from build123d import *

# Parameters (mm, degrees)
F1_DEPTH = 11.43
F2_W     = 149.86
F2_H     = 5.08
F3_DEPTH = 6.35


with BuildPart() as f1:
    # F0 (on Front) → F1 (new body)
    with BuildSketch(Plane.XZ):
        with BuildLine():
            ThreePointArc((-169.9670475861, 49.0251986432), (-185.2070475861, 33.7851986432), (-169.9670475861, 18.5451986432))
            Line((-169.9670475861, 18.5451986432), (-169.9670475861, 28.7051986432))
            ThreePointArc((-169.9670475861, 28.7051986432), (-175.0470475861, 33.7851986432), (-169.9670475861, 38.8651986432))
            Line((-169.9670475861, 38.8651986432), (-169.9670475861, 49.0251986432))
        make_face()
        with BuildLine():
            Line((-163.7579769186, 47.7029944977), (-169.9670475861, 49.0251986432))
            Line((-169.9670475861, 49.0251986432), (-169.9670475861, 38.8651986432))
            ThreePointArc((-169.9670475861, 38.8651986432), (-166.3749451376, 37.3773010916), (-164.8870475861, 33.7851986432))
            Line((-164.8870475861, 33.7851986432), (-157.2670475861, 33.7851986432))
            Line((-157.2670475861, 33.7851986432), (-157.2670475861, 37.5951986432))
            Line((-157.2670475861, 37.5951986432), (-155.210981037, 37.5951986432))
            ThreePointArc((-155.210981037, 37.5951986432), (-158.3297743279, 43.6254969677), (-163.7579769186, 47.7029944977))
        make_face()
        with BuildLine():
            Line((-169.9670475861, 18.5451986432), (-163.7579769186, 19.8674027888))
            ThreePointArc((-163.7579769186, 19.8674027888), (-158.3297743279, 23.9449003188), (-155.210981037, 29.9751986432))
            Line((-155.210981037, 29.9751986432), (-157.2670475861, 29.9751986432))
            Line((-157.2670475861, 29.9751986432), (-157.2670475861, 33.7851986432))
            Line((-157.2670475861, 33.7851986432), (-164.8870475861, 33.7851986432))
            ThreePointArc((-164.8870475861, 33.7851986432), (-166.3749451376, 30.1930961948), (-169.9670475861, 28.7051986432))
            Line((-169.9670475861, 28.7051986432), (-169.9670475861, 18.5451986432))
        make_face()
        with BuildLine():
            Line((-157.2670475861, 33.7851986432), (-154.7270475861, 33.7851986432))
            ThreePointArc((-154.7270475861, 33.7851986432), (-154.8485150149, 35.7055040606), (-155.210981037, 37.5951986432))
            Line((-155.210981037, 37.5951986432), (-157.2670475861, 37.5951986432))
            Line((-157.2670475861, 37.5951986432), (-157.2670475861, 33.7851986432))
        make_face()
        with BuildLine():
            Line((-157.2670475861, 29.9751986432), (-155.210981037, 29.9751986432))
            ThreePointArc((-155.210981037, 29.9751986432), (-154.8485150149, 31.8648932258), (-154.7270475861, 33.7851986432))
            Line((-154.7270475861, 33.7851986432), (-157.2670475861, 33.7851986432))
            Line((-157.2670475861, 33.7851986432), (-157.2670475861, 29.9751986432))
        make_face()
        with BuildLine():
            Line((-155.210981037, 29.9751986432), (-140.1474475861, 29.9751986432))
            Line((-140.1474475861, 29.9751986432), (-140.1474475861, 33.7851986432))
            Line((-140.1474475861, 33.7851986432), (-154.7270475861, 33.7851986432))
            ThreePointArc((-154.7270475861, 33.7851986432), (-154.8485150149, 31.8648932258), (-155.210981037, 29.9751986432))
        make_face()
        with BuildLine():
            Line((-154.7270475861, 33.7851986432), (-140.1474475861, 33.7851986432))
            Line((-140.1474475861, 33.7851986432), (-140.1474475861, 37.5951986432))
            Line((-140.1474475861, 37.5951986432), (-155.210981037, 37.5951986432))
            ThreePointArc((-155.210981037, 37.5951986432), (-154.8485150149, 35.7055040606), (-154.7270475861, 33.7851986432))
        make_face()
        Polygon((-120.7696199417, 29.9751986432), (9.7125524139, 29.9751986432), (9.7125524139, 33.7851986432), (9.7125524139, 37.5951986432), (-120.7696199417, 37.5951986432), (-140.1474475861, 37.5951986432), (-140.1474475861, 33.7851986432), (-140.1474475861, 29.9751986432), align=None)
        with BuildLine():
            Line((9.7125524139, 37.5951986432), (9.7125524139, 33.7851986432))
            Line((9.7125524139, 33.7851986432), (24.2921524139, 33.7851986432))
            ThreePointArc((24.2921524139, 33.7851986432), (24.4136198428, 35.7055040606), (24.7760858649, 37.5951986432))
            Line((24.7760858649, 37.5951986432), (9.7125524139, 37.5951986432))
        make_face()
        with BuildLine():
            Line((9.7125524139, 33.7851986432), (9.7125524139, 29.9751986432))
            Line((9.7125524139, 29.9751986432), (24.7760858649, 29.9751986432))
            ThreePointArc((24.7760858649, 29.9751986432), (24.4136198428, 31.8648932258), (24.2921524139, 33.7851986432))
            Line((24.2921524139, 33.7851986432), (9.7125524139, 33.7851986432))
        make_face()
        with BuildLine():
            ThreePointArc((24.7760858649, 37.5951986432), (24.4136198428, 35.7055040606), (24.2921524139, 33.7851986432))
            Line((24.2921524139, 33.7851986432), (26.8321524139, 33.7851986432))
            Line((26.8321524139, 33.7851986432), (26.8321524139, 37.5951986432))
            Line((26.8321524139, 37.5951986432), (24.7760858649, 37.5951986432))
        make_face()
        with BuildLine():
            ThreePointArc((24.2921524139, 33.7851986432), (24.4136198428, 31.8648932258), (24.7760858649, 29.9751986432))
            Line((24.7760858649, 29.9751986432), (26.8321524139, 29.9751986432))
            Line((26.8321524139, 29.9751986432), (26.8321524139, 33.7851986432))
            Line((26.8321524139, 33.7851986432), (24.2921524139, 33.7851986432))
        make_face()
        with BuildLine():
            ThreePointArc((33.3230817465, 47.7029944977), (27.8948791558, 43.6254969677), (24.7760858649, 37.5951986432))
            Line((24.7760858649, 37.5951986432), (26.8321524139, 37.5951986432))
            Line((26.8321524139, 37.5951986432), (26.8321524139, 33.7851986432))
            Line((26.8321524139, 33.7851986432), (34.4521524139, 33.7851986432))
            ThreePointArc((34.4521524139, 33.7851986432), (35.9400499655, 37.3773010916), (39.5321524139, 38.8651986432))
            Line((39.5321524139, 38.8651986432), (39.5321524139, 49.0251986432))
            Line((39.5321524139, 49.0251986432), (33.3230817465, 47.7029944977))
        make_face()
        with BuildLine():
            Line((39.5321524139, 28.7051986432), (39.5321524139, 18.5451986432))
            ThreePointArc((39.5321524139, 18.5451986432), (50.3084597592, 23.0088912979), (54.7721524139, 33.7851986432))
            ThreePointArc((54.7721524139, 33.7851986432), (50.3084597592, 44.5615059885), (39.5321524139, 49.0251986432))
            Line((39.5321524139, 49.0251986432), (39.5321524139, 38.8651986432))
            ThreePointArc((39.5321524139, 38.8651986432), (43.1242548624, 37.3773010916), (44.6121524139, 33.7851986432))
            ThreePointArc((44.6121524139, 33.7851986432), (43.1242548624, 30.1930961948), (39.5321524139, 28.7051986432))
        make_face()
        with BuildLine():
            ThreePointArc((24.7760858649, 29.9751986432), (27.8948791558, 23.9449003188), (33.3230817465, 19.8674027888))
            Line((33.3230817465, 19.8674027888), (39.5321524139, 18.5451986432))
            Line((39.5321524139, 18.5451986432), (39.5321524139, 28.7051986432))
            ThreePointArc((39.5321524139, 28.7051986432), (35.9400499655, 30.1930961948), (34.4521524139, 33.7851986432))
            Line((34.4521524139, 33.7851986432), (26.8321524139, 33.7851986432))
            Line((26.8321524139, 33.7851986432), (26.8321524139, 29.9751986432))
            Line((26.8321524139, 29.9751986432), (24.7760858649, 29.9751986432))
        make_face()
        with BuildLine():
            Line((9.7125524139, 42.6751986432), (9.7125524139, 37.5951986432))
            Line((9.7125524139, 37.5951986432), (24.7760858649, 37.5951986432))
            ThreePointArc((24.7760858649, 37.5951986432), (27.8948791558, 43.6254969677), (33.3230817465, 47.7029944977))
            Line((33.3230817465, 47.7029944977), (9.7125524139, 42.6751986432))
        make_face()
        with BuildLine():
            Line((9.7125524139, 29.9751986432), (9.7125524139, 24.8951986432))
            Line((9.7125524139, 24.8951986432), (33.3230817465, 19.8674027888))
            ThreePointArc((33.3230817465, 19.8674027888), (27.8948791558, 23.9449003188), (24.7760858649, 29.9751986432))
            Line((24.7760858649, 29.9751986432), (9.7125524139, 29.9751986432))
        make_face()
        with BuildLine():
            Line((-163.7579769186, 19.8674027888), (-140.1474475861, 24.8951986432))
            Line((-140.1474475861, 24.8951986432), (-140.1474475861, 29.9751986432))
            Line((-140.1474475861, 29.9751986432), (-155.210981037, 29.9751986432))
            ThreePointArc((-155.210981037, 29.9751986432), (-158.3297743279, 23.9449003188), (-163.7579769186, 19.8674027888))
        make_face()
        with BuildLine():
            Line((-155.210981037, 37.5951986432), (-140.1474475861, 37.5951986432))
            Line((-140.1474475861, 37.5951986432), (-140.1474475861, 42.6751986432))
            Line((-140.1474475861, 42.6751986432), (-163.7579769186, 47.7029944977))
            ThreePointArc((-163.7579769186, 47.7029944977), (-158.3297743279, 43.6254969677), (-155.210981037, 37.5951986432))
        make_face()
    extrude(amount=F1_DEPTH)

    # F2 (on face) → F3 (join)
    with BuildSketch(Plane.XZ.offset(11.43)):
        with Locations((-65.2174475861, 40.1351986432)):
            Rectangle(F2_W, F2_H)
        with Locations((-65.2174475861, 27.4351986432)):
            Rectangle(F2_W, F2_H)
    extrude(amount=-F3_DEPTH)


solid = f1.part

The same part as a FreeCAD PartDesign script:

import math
import FreeCAD as App
import Part
import Sketcher

V = App.Vector
Q = App.Units.Quantity

doc = App.newDocument("Part")
body = doc.addObject("PartDesign::Body", "Body")

# Sketch on XZ plane
sketch1 = body.newObject("Sketcher::SketchObject", "Sketch")
sketch1.AttachmentSupport = (doc.getObject("XZ_Plane"), [""])
sketch1.MapMode = "FlatFace"
sketch1.addGeometry(Part.ArcOfCircle(Part.Circle(V(-170, 34, 0), V(0, 0, 1), 15), math.radians(90), math.radians(270)), False)
sketch1.addGeometry(Part.LineSegment(V(-170, 19, 0), V(-164, 20, 0)), False)
sketch1.addGeometry(Part.LineSegment(V(-164, 20, 0), V(-140, 25, 0)), False)
sketch1.addGeometry(Part.LineSegment(V(-140, 25, 0), V(-140, 30, 0)), False)
sketch1.addGeometry(Part.LineSegment(V(-140, 30, 0), V(10, 30, 0)), False)
sketch1.addGeometry(Part.LineSegment(V(10, 30, 0), V(10, 25, 0)), False)
sketch1.addGeometry(Part.LineSegment(V(10, 25, 0), V(33, 20, 0)), False)
sketch1.addGeometry(Part.LineSegment(V(33, 20, 0), V(40, 19, 0)), False)
sketch1.addGeometry(Part.ArcOfCircle(Part.Circle(V(40, 34, 0), V(0, 0, 1), 15), math.radians(-90), math.radians(0)), False)
sketch1.addGeometry(Part.ArcOfCircle(Part.Circle(V(40, 34, 0), V(0, 0, 1), 15), math.radians(0), math.radians(90)), False)
sketch1.addGeometry(Part.LineSegment(V(40, 49, 0), V(33, 48, 0)), False)
sketch1.addGeometry(Part.LineSegment(V(33, 48, 0), V(10, 43, 0)), False)
sketch1.addGeometry(Part.LineSegment(V(10, 43, 0), V(10, 38, 0)), False)
sketch1.addGeometry(Part.LineSegment(V(10, 38, 0), V(-140, 38, 0)), False)
sketch1.addGeometry(Part.LineSegment(V(-140, 38, 0), V(-140, 43, 0)), False)
sketch1.addGeometry(Part.LineSegment(V(-140, 43, 0), V(-164, 48, 0)), False)
sketch1.addGeometry(Part.LineSegment(V(-164, 48, 0), V(-170, 49, 0)), False)
sketch1.addGeometry(Part.ArcOfCircle(Part.Circle(V(40, 34, 0), V(0, 0, 1), 5), math.radians(90), math.radians(180)), False)
sketch1.addGeometry(Part.ArcOfCircle(Part.Circle(V(40, 34, 0), V(0, 0, 1), 5), math.radians(0), math.radians(90)), False)
sketch1.addGeometry(Part.ArcOfCircle(Part.Circle(V(40, 34, 0), V(0, 0, 1), 5), math.radians(-90), math.radians(0)), False)
sketch1.addGeometry(Part.ArcOfCircle(Part.Circle(V(40, 34, 0), V(0, 0, 1), 5), math.radians(180), math.radians(270)), False)
sketch1.addGeometry(Part.ArcOfCircle(Part.Circle(V(-170, 34, 0), V(0, 0, 1), 5), math.radians(90), math.radians(270)), False)
sketch1.addGeometry(Part.ArcOfCircle(Part.Circle(V(-170, 34, 0), V(0, 0, 1), 5), math.radians(0), math.radians(90)), False)
sketch1.addGeometry(Part.ArcOfCircle(Part.Circle(V(-170, 34, 0), V(0, 0, 1), 5), math.radians(-90), math.radians(0)), False)
sketch1.addConstraint(Sketcher.Constraint("Coincident", 0, 2, 1, 1))
sketch1.addConstraint(Sketcher.Constraint("Coincident", 1, 2, 2, 1))
sketch1.addConstraint(Sketcher.Constraint("Coincident", 2, 2, 3, 1))
sketch1.addConstraint(Sketcher.Constraint("Coincident", 3, 2, 4, 1))
sketch1.addConstraint(Sketcher.Constraint("Coincident", 4, 2, 5, 1))
sketch1.addConstraint(Sketcher.Constraint("Coincident", 5, 2, 6, 1))
sketch1.addConstraint(Sketcher.Constraint("Coincident", 6, 2, 7, 1))
sketch1.addConstraint(Sketcher.Constraint("Coincident", 7, 2, 8, 1))
sketch1.addConstraint(Sketcher.Constraint("Tangent", 8, 2, 9, 1))
sketch1.addConstraint(Sketcher.Constraint("Coincident", 9, 2, 10, 1))
sketch1.addConstraint(Sketcher.Constraint("Coincident", 10, 2, 11, 1))
sketch1.addConstraint(Sketcher.Constraint("Coincident", 11, 2, 12, 1))
sketch1.addConstraint(Sketcher.Constraint("Coincident", 12, 2, 13, 1))
sketch1.addConstraint(Sketcher.Constraint("Coincident", 13, 2, 14, 1))
sketch1.addConstraint(Sketcher.Constraint("Coincident", 14, 2, 15, 1))
sketch1.addConstraint(Sketcher.Constraint("Coincident", 15, 2, 16, 1))
sketch1.addConstraint(Sketcher.Constraint("Coincident", 16, 2, 0, 1))
sketch1.addConstraint(Sketcher.Constraint("Tangent", 17, 1, 18, 2))
sketch1.addConstraint(Sketcher.Constraint("Tangent", 18, 1, 19, 2))
sketch1.addConstraint(Sketcher.Constraint("Tangent", 19, 1, 20, 2))
sketch1.addConstraint(Sketcher.Constraint("Tangent", 20, 1, 17, 2))
sketch1.addConstraint(Sketcher.Constraint("Tangent", 21, 1, 22, 2))
sketch1.addConstraint(Sketcher.Constraint("Tangent", 22, 1, 23, 2))
sketch1.addConstraint(Sketcher.Constraint("Tangent", 23, 1, 21, 2))
sketch1.addConstraint(Sketcher.Constraint("Vertical", 3))
sketch1.addConstraint(Sketcher.Constraint("Horizontal", 4))
sketch1.addConstraint(Sketcher.Constraint("Vertical", 5))
sketch1.addConstraint(Sketcher.Constraint("Vertical", 12))
sketch1.addConstraint(Sketcher.Constraint("Horizontal", 13))
sketch1.addConstraint(Sketcher.Constraint("Vertical", 14))
sketch1.addConstraint(Sketcher.Constraint("Coincident", 17, 3, 8, 3))
sketch1.addConstraint(Sketcher.Constraint("Coincident", 21, 3, 0, 3))
sketch1.addConstraint(Sketcher.Constraint("Equal", 0, 8))
sketch1.addConstraint(Sketcher.Constraint("Equal", 8, 9))
sketch1.addConstraint(Sketcher.Constraint("Equal", 17, 18))
sketch1.addConstraint(Sketcher.Constraint("Equal", 20, 21))
sketch1.addConstraint(Sketcher.Constraint("Parallel", 1, 2))
sketch1.addConstraint(Sketcher.Constraint("Parallel", 6, 7))
sketch1.addConstraint(Sketcher.Constraint("Parallel", 2, 10))
sketch1.addConstraint(Sketcher.Constraint("Parallel", 10, 11))
sketch1.addConstraint(Sketcher.Constraint("Parallel", 7, 15))
sketch1.addConstraint(Sketcher.Constraint("Parallel", 15, 16))
sketch1.addConstraint(Sketcher.Constraint("Horizontal", 0, 3, 8, 3))
sketch1.addConstraint(Sketcher.Constraint("Horizontal", 2, 2, 5, 2))
sketch1.addConstraint(Sketcher.Constraint("Horizontal", 1, 2, 6, 2))
sketch1.addConstraint(Sketcher.Constraint("Horizontal", 23, 3, 8, 2))
sketch1.addConstraint(Sketcher.Constraint("Horizontal", 11, 2, 14, 2))
sketch1.addConstraint(Sketcher.Constraint("Horizontal", 10, 2, 15, 2))
sketch1.addConstraint(Sketcher.Constraint("Horizontal", 8, 2, 18, 1))
sketch1.addConstraint(Sketcher.Constraint("Horizontal", 18, 1, 20, 1))
sketch1.addConstraint(Sketcher.Constraint("Horizontal", 20, 1, 22, 1))
sketch1.addConstraint(Sketcher.Constraint("Vertical", 23, 3, 0, 2))
sketch1.addConstraint(Sketcher.Constraint("Vertical", 20, 3, 7, 2))
sketch1.addConstraint(Sketcher.Constraint("Vertical", 7, 2, 9, 2))
sketch1.addConstraint(Sketcher.Constraint("Vertical", 6, 2, 10, 2))
sketch1.addConstraint(Sketcher.Constraint("Vertical", 5, 2, 11, 2))
sketch1.addConstraint(Sketcher.Constraint("Vertical", 3, 2, 13, 2))
sketch1.addConstraint(Sketcher.Constraint("Vertical", 1, 2, 15, 2))
sketch1.addConstraint(Sketcher.Constraint("Vertical", 9, 2, 17, 1))
sketch1.addConstraint(Sketcher.Constraint("Vertical", 17, 1, 19, 1))
sketch1.addConstraint(Sketcher.Constraint("Vertical", 16, 2, 21, 1))
sketch1.addConstraint(Sketcher.Constraint("Vertical", 21, 1, 23, 1))
sketch1.addConstraint(Sketcher.Constraint("Equal", 5, 12))
sketch1.addConstraint(Sketcher.Constraint("Radius", 0, Q("0.6 in")))
sketch1.addConstraint(Sketcher.Constraint("Radius", 17, Q("0.2 in")))
sketch1.addConstraint(Sketcher.Constraint("DistanceX", 4, 1, 4, 2, Q("5.9 in")))
sketch1.addConstraint(Sketcher.Constraint("DistanceY", 3, 1, 3, 2, Q("0.2 in")))
sketch1.addConstraint(Sketcher.Constraint("DistanceY", 4, 2, 11, 2, Q("0.5 in")))
sketch1.addConstraint(Sketcher.Constraint("DistanceX", 0, 3, 8, 3, Q("8.248 in")))
sketch1.addConstraint(Sketcher.Constraint("DistanceY", -1, 1, 0, 3, 33.785199))
sketch1.addConstraint(Sketcher.Constraint("Distance", 1, 6.34829))
sketch1.addConstraint(Sketcher.Constraint("DistanceX", -1, 1, 6, 2, 33.323082))
pad1 = body.newObject("PartDesign::Pad", "Pad")
pad1.Profile = sketch1
pad1.Length = Q("0.45 in")

# Sketch on XZ plane
sketch2 = body.newObject("Sketcher::SketchObject", "Sketch001")
sketch2.AttachmentSupport = (doc.getObject("XZ_Plane"), [""])
sketch2.MapMode = "FlatFace"
sketch2.AttachmentOffset = App.Placement(V(0, 0, 0.45 * 25.4), App.Rotation())
sketch2.addGeometry(Part.LineSegment(V(-140, 43, 0), V(-140, 38, 0)), False)
sketch2.addGeometry(Part.LineSegment(V(-140, 38, 0), V(10, 38, 0)), False)
sketch2.addGeometry(Part.LineSegment(V(10, 38, 0), V(10, 43, 0)), False)
sketch2.addGeometry(Part.LineSegment(V(10, 43, 0), V(-140, 43, 0)), False)
sketch2.addGeometry(Part.LineSegment(V(-140, 30, 0), V(-140, 25, 0)), False)
sketch2.addGeometry(Part.LineSegment(V(-140, 25, 0), V(10, 25, 0)), False)
sketch2.addGeometry(Part.LineSegment(V(10, 25, 0), V(10, 30, 0)), False)
sketch2.addGeometry(Part.LineSegment(V(10, 30, 0), V(-140, 30, 0)), False)
sketch2.addConstraint(Sketcher.Constraint("Coincident", 0, 2, 1, 1))
sketch2.addConstraint(Sketcher.Constraint("Coincident", 1, 2, 2, 1))
sketch2.addConstraint(Sketcher.Constraint("Coincident", 2, 2, 3, 1))
sketch2.addConstraint(Sketcher.Constraint("Coincident", 3, 2, 0, 1))
sketch2.addConstraint(Sketcher.Constraint("Coincident", 4, 2, 5, 1))
sketch2.addConstraint(Sketcher.Constraint("Coincident", 5, 2, 6, 1))
sketch2.addConstraint(Sketcher.Constraint("Coincident", 6, 2, 7, 1))
sketch2.addConstraint(Sketcher.Constraint("Coincident", 7, 2, 4, 1))
sketch2.addConstraint(Sketcher.Constraint("Vertical", 0))
sketch2.addConstraint(Sketcher.Constraint("Horizontal", 1))
sketch2.addConstraint(Sketcher.Constraint("Vertical", 2))
sketch2.addConstraint(Sketcher.Constraint("Horizontal", 3))
sketch2.addConstraint(Sketcher.Constraint("Vertical", 4))
sketch2.addConstraint(Sketcher.Constraint("Horizontal", 5))
sketch2.addConstraint(Sketcher.Constraint("Vertical", 6))
sketch2.addConstraint(Sketcher.Constraint("Horizontal", 7))
sketch2.addConstraint(Sketcher.Constraint("Vertical", 3, 2, 4, 2))
sketch2.addConstraint(Sketcher.Constraint("Vertical", 2, 2, 5, 2))
sketch2.addConstraint(Sketcher.Constraint("Equal", 2, 4))
sketch2.addConstraint(Sketcher.Constraint("DistanceX", 1, 1, 1, 2, Q("5.9 in")))
sketch2.addConstraint(Sketcher.Constraint("DistanceY", 0, 2, 0, 1, Q("0.2 in")))
sketch2.addConstraint(Sketcher.Constraint("DistanceY", 4, 2, 0, 2, Q("0.5 in")))
sketch2.addConstraint(Sketcher.Constraint("DistanceY", -1, 1, 0, 2, 37.595199))
sketch2.addConstraint(Sketcher.Constraint("DistanceX", 0, 2, -1, 1, 140.147448))
pad2 = body.newObject("PartDesign::Pad", "Pad001")
pad2.Profile = sketch2
pad2.Length = Q("0.25 in")
pad2.Reversed = True

doc.recompute()
